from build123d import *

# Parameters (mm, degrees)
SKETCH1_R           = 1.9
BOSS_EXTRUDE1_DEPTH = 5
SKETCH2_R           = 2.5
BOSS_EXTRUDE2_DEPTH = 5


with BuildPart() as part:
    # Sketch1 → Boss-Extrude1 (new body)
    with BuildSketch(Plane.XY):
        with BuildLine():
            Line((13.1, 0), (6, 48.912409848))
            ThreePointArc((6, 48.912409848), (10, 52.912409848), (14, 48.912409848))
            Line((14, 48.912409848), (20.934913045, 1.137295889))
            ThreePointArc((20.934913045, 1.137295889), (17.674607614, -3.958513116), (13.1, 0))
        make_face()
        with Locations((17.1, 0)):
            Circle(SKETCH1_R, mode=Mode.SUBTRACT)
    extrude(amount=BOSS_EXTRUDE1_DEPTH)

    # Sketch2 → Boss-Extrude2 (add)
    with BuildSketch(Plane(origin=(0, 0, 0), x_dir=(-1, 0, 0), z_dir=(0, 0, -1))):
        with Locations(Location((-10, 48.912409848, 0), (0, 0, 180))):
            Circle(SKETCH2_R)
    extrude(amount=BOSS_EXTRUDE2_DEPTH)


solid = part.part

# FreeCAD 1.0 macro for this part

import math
import FreeCAD as App
import Part
import Sketcher

doc = App.newDocument("Part")
params = doc.addObject("Spreadsheet::Sheet", "Params")
for row, (alias, value) in enumerate([
    ("sketch1_radius", "4 mm"),
    ("sketch1_diameter", "3.8 mm"),
    ("pad1_length", "5 mm"),
    ("sketch2_diameter", "5 mm"),
    ("pad2_length", "5 mm"),
], start=1):
    params.set(f"A{row}", alias)
    params.set(f"B{row}", "=" + value)
    params.setAlias(f"B{row}", alias)

body = doc.addObject("PartDesign::Body", "Body")

# Sketch on XY plane
sketch1 = doc.addObject("Sketcher::SketchObject", "Sketch")
body.addObject(sketch1)
sketch1.AttachmentSupport = (doc.XY_Plane, [""])
sketch1.MapMode = "FlatFace"
sketch1.addGeometry(Part.LineSegment(App.Vector(6, 48.9, 0), App.Vector(13.1, 0, 0)), False)
sketch1.addGeometry(Part.ArcOfCircle(Part.Circle(App.Vector(17.1, 0, 0), App.Vector(0, 0, 1), 4), math.radians(180), math.radians(377)), False)
sketch1.addGeometry(Part.LineSegment(App.Vector(20.9, 1.1, 0), App.Vector(14, 48.9, 0)), False)
sketch1.addGeometry(Part.ArcOfCircle(Part.Circle(App.Vector(10, 48.9, 0), App.Vector(0, 0, 1), 4), math.radians(0), math.radians(180)), False)
sketch1.addGeometry(Part.Circle(App.Vector(17.1, 0, 0), App.Vector(0, 0, 1), 1.9), False)
sketch1.addConstraint(Sketcher.Constraint("Coincident", 0, 2, 1, 1))
sketch1.addConstraint(Sketcher.Constraint("Coincident", 1, 2, 2, 1))
sketch1.addConstraint(Sketcher.Constraint("Coincident", 2, 2, 3, 1))
sketch1.addConstraint(Sketcher.Constraint("Coincident", 3, 2, 0, 1))
sketch1.addConstraint(Sketcher.Constraint("Coincident", 4, 3, 1, 3))
sketch1.addConstraint(Sketcher.Constraint("Equal", 1, 3))
sketch1.addConstraint(Sketcher.Constraint("PointOnObject", 1, 3, -1))
sketch1.addConstraint(Sketcher.Constraint("PointOnObject", 0, 2, -1))
sketch1.addConstraint(Sketcher.Constraint("Parallel", 0, 2))
sketch1.addConstraint(Sketcher.Constraint("Horizontal", 3, 3, 2, 2))
sketch1.addConstraint(Sketcher.Constraint("Horizontal", 2, 2, 3, 2))
sketch1.addConstraint(Sketcher.Constraint("Radius", 1, 4.0))
sketch1.addConstraint(Sketcher.Constraint("Diameter", 4, 3.8))
sketch1.addConstraint(Sketcher.Constraint("DistanceX", -1, 1, 3, 3, 10.0))
sketch1.addConstraint(Sketcher.Constraint("DistanceX", -1, 1, 1, 3, 17.1))
sketch1.addConstraint(Sketcher.Constraint("DistanceY", -1, 1, 3, 3, 48.91241))
sketch1.setExpression("Constraints[11]", "Params.sketch1_radius")
sketch1.setExpression("Constraints[12]", "Params.sketch1_diameter")
pad1 = doc.addObject("PartDesign::Pad", "Pad")
body.addObject(pad1)
pad1.Profile = sketch1
pad1.setExpression("Length", "Params.pad1_length")

# Sketch on XY plane
sketch2 = doc.addObject("Sketcher::SketchObject", "Sketch001")
body.addObject(sketch2)
sketch2.AttachmentSupport = (doc.XY_Plane, [""])
sketch2.MapMode = "FlatFace"
sketch2.addGeometry(Part.Circle(App.Vector(10, 48.9, 0), App.Vector(0, 0, 1), 2.5), False)
sketch2.addConstraint(Sketcher.Constraint("Diameter", 0, 5.0))
sketch2.addConstraint(Sketcher.Constraint("DistanceX", -1, 1, 0, 3, 10.0))
sketch2.addConstraint(Sketcher.Constraint("DistanceY", -1, 1, 0, 3, 48.91241))
sketch2.setExpression("Constraints[0]", "Params.sketch2_diameter")
pad2 = doc.addObject("PartDesign::Pad", "Pad001")
body.addObject(pad2)
pad2.Profile = sketch2
pad2.setExpression("Length", "Params.pad2_length")
pad2.Reversed = True

doc.recompute()
